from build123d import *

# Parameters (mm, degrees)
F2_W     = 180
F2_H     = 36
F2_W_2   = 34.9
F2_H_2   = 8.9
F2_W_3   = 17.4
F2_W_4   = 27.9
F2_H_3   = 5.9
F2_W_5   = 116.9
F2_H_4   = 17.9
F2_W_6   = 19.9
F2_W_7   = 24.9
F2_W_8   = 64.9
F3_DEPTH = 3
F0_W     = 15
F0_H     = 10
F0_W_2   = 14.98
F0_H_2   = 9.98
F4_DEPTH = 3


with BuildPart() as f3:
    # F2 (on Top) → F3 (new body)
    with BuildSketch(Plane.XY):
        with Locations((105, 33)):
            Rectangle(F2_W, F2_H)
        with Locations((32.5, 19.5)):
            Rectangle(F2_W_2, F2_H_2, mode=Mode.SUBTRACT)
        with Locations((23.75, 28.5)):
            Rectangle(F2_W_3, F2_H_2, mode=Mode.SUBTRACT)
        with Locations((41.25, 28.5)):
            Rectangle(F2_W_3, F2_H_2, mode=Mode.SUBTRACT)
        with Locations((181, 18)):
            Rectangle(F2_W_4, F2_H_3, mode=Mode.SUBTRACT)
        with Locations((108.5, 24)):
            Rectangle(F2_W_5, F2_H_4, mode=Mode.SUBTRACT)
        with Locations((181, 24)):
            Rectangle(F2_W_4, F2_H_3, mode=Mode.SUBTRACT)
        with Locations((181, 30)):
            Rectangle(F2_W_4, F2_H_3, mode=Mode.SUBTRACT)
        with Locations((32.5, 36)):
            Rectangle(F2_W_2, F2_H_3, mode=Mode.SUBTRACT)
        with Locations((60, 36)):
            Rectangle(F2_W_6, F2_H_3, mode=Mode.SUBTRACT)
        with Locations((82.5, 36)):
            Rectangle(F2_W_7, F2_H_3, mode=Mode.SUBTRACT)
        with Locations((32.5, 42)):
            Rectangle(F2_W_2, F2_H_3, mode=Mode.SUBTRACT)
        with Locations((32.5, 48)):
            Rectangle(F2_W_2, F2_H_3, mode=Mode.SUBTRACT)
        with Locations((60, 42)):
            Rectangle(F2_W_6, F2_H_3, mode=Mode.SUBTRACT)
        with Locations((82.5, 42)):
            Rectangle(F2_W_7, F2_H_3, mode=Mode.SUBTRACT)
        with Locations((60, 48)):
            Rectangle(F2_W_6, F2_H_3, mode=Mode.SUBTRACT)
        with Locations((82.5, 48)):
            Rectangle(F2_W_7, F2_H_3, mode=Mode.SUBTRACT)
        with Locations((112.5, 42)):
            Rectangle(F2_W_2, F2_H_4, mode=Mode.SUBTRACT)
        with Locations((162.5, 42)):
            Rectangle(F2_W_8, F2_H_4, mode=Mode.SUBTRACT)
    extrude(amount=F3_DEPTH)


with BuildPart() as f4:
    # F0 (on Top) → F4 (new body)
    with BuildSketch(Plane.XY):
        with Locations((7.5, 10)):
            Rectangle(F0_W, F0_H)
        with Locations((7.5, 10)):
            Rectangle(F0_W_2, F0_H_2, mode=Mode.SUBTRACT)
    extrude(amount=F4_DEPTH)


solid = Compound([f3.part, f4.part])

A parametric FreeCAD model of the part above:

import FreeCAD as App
import Part
import Sketcher

doc = App.newDocument("Part")
body = doc.addObject("PartDesign::Body", "Body")

# Sketch on XY plane
sketch1 = body.newObject("Sketcher::SketchObject", "Sketch")
sketch1.AttachmentSupport = (doc.getObject("XY_Plane"), [""])
sketch1.MapMode = "FlatFace"
sketch1.addGeometry([
    Part.LineSegment(App.Vector(15, 51, 0), App.Vector(15, 15, 0)),  # 0
    Part.LineSegment(App.Vector(15, 15, 0), App.Vector(195, 15, 0)),  # 1
    Part.LineSegment(App.Vector(195, 15, 0), App.Vector(195, 51, 0)),  # 2
    Part.LineSegment(App.Vector(195, 51, 0), App.Vector(15, 51, 0)),  # 3
    Part.LineSegment(App.Vector(50, 15, 0), App.Vector(15, 15, 0)),  # 4
    Part.LineSegment(App.Vector(15, 15, 0), App.Vector(15, 24, 0)),  # 5
    Part.LineSegment(App.Vector(15, 24, 0), App.Vector(50, 24, 0)),  # 6
    Part.LineSegment(App.Vector(50, 24, 0), App.Vector(50, 15, 0)),  # 7
    Part.LineSegment(App.Vector(32, 24, 0), App.Vector(15, 24, 0)),  # 8
    Part.LineSegment(App.Vector(15, 24, 0), App.Vector(15, 33, 0)),  # 9
    Part.LineSegment(App.Vector(15, 33, 0), App.Vector(32, 33, 0)),  # 10
    Part.LineSegment(App.Vector(32, 33, 0), App.Vector(32, 24, 0)),  # 11
    Part.LineSegment(App.Vector(50, 24, 0), App.Vector(33, 24, 0)),  # 12
    Part.LineSegment(App.Vector(33, 24, 0), App.Vector(33, 33, 0)),  # 13
    Part.LineSegment(App.Vector(33, 33, 0), App.Vector(50, 33, 0)),  # 14
    Part.LineSegment(App.Vector(50, 33, 0), App.Vector(50, 24, 0)),  # 15
    Part.LineSegment(App.Vector(167, 15, 0), App.Vector(50, 15, 0)),  # 16
    Part.LineSegment(App.Vector(50, 15, 0), App.Vector(50, 33, 0)),  # 17
    Part.LineSegment(App.Vector(50, 33, 0), App.Vector(167, 33, 0)),  # 18
    Part.LineSegment(App.Vector(167, 33, 0), App.Vector(167, 15, 0)),  # 19
    Part.LineSegment(App.Vector(195, 15, 0), App.Vector(167, 15, 0)),  # 20
    Part.LineSegment(App.Vector(167, 15, 0), App.Vector(167, 21, 0)),  # 21
    Part.LineSegment(App.Vector(167, 21, 0), App.Vector(195, 21, 0)),  # 22
    Part.LineSegment(App.Vector(195, 21, 0), App.Vector(195, 15, 0)),  # 23
    Part.LineSegment(App.Vector(195, 21, 0), App.Vector(167, 21, 0)),  # 24
    Part.LineSegment(App.Vector(167, 21, 0), App.Vector(167, 27, 0)),  # 25
    Part.LineSegment(App.Vector(167, 27, 0), App.Vector(195, 27, 0)),  # 26
    Part.LineSegment(App.Vector(195, 27, 0), App.Vector(195, 21, 0)),  # 27
    Part.LineSegment(App.Vector(195, 27, 0), App.Vector(167, 27, 0)),  # 28
    Part.LineSegment(App.Vector(167, 27, 0), App.Vector(167, 33, 0)),  # 29
    Part.LineSegment(App.Vector(167, 33, 0), App.Vector(195, 33, 0)),  # 30
    Part.LineSegment(App.Vector(195, 33, 0), App.Vector(195, 27, 0)),  # 31
    Part.LineSegment(App.Vector(50, 33, 0), App.Vector(15, 33, 0)),  # 32
    Part.LineSegment(App.Vector(15, 33, 0), App.Vector(15, 39, 0)),  # 33
    Part.LineSegment(App.Vector(15, 39, 0), App.Vector(50, 39, 0)),  # 34
    Part.LineSegment(App.Vector(50, 39, 0), App.Vector(50, 33, 0)),  # 35
    Part.LineSegment(App.Vector(70, 33, 0), App.Vector(50, 33, 0)),  # 36
    Part.LineSegment(App.Vector(50, 33, 0), App.Vector(50, 39, 0)),  # 37
    Part.LineSegment(App.Vector(50, 39, 0), App.Vector(70, 39, 0)),  # 38
    Part.LineSegment(App.Vector(70, 39, 0), App.Vector(70, 33, 0)),  # 39
    Part.LineSegment(App.Vector(95, 33, 0), App.Vector(70, 33, 0)),  # 40
    Part.LineSegment(App.Vector(70, 33, 0), App.Vector(70, 39, 0)),  # 41
    Part.LineSegment(App.Vector(70, 39, 0), App.Vector(95, 39, 0)),  # 42
    Part.LineSegment(App.Vector(95, 39, 0), App.Vector(95, 33, 0)),  # 43
    Part.LineSegment(App.Vector(50, 39, 0), App.Vector(15, 39, 0)),  # 44
    Part.LineSegment(App.Vector(15, 39, 0), App.Vector(15, 45, 0)),  # 45
    Part.LineSegment(App.Vector(15, 45, 0), App.Vector(50, 45, 0)),  # 46
    Part.LineSegment(App.Vector(50, 45, 0), App.Vector(50, 39, 0)),  # 47
    Part.LineSegment(App.Vector(70, 39, 0), App.Vector(50, 39, 0)),  # 48
    Part.LineSegment(App.Vector(50, 39, 0), App.Vector(50, 45, 0)),  # 49
    Part.LineSegment(App.Vector(50, 45, 0), App.Vector(70, 45, 0)),  # 50
    Part.LineSegment(App.Vector(70, 45, 0), App.Vector(70, 39, 0)),  # 51
    Part.LineSegment(App.Vector(50, 45, 0), App.Vector(15, 45, 0)),  # 52
    Part.LineSegment(App.Vector(15, 45, 0), App.Vector(15, 51, 0)),  # 53
    Part.LineSegment(App.Vector(15, 51, 0), App.Vector(50, 51, 0)),  # 54
    Part.LineSegment(App.Vector(50, 51, 0), App.Vector(50, 45, 0)),  # 55
    Part.LineSegment(App.Vector(70, 45, 0), App.Vector(50, 45, 0)),  # 56
    Part.LineSegment(App.Vector(50, 45, 0), App.Vector(50, 51, 0)),  # 57
    Part.LineSegment(App.Vector(50, 51, 0), App.Vector(70, 51, 0)),  # 58
    Part.LineSegment(App.Vector(70, 51, 0), App.Vector(70, 45, 0)),  # 59
    Part.LineSegment(App.Vector(95, 39, 0), App.Vector(70, 39, 0)),  # 60
    Part.LineSegment(App.Vector(70, 39, 0), App.Vector(70, 45, 0)),  # 61
    Part.LineSegment(App.Vector(70, 45, 0), App.Vector(95, 45, 0)),  # 62
    Part.LineSegment(App.Vector(95, 45, 0), App.Vector(95, 39, 0)),  # 63
    Part.LineSegment(App.Vector(95, 45, 0), App.Vector(70, 45, 0)),  # 64
    Part.LineSegment(App.Vector(70, 45, 0), App.Vector(70, 51, 0)),  # 65
    Part.LineSegment(App.Vector(70, 51, 0), App.Vector(95, 51, 0)),  # 66
    Part.LineSegment(App.Vector(95, 51, 0), App.Vector(95, 45, 0)),  # 67
    Part.LineSegment(App.Vector(130, 33, 0), App.Vector(95, 33, 0)),  # 68
    Part.LineSegment(App.Vector(95, 33, 0), App.Vector(95, 51, 0)),  # 69
    Part.LineSegment(App.Vector(95, 51, 0), App.Vector(130, 51, 0)),  # 70
    Part.LineSegment(App.Vector(130, 51, 0), App.Vector(130, 33, 0)),  # 71
    Part.LineSegment(App.Vector(195, 33, 0), App.Vector(130, 33, 0)),  # 72
    Part.LineSegment(App.Vector(130, 33, 0), App.Vector(130, 51, 0)),  # 73
    Part.LineSegment(App.Vector(130, 51, 0), App.Vector(195, 51, 0)),  # 74
    Part.LineSegment(App.Vector(195, 51, 0), App.Vector(195, 33, 0)),  # 75
], False)
sketch1.addConstraint([
    Sketcher.Constraint("Coincident", 0, 2, 1, 1),
    Sketcher.Constraint("Coincident", 1, 2, 2, 1),
    Sketcher.Constraint("Coincident", 2, 2, 3, 1),
    Sketcher.Constraint("Coincident", 3, 2, 0, 1),
    Sketcher.Constraint("Coincident", 4, 2, 5, 1),
    Sketcher.Constraint("Coincident", 5, 2, 6, 1),
    Sketcher.Constraint("Coincident", 6, 2, 7, 1),
    Sketcher.Constraint("Coincident", 7, 2, 4, 1),
    Sketcher.Constraint("Coincident", 8, 2, 9, 1),
    Sketcher.Constraint("Coincident", 9, 2, 10, 1),
    Sketcher.Constraint("Coincident", 10, 2, 11, 1),
    Sketcher.Constraint("Coincident", 11, 2, 8, 1),
    Sketcher.Constraint("Coincident", 12, 2, 13, 1),
    Sketcher.Constraint("Coincident", 13, 2, 14, 1),
    Sketcher.Constraint("Coincident", 14, 2, 15, 1),
    Sketcher.Constraint("Coincident", 15, 2, 12, 1),
    Sketcher.Constraint("Coincident", 16, 2, 17, 1),
    Sketcher.Constraint("Coincident", 17, 2, 18, 1),
    Sketcher.Constraint("Coincident", 18, 2, 19, 1),
    Sketcher.Constraint("Coincident", 19, 2, 16, 1),
    Sketcher.Constraint("Coincident", 20, 2, 21, 1),
    Sketcher.Constraint("Coincident", 21, 2, 22, 1),
    Sketcher.Constraint("Coincident", 22, 2, 23, 1),
    Sketcher.Constraint("Coincident", 23, 2, 20, 1),
    Sketcher.Constraint("Coincident", 24, 2, 25, 1),
    Sketcher.Constraint("Coincident", 25, 2, 26, 1),
    Sketcher.Constraint("Coincident", 26, 2, 27, 1),
    Sketcher.Constraint("Coincident", 27, 2, 24, 1),
    Sketcher.Constraint("Coincident", 28, 2, 29, 1),
    Sketcher.Constraint("Coincident", 29, 2, 30, 1),
    Sketcher.Constraint("Coincident", 30, 2, 31, 1),
    Sketcher.Constraint("Coincident", 31, 2, 28, 1),
    Sketcher.Constraint("Coincident", 32, 2, 33, 1),
    Sketcher.Constraint("Coincident", 33, 2, 34, 1),
    Sketcher.Constraint("Coincident", 34, 2, 35, 1),
    Sketcher.Constraint("Coincident", 35, 2, 32, 1),
    Sketcher.Constraint("Coincident", 36, 2, 37, 1),
    Sketcher.Constraint("Coincident", 37, 2, 38, 1),
    Sketcher.Constraint("Coincident", 38, 2, 39, 1),
    Sketcher.Constraint("Coincident", 39, 2, 36, 1),
    Sketcher.Constraint("Coincident", 40, 2, 41, 1),
    Sketcher.Constraint("Coincident", 41, 2, 42, 1),
    Sketcher.Constraint("Coincident", 42, 2, 43, 1),
    Sketcher.Constraint("Coincident", 43, 2, 40, 1),
    Sketcher.Constraint("Coincident", 44, 2, 45, 1),
    Sketcher.Constraint("Coincident", 45, 2, 46, 1),
    Sketcher.Constraint("Coincident", 46, 2, 47, 1),
    Sketcher.Constraint("Coincident", 47, 2, 44, 1),
    Sketcher.Constraint("Coincident", 48, 2, 49, 1),
    Sketcher.Constraint("Coincident", 49, 2, 50, 1),
    Sketcher.Constraint("Coincident", 50, 2, 51, 1),
    Sketcher.Constraint("Coincident", 51, 2, 48, 1),
    Sketcher.Constraint("Coincident", 52, 2, 53, 1),
    Sketcher.Constraint("Coincident", 53, 2, 54, 1),
    Sketcher.Constraint("Coincident", 54, 2, 55, 1),
    Sketcher.Constraint("Coincident", 55, 2, 52, 1),
    Sketcher.Constraint("Coincident", 56, 2, 57, 1),
    Sketcher.Constraint("Coincident", 57, 2, 58, 1),
    Sketcher.Constraint("Coincident", 58, 2, 59, 1),
    Sketcher.Constraint("Coincident", 59, 2, 56, 1),
    Sketcher.Constraint("Coincident", 60, 2, 61, 1),
    Sketcher.Constraint("Coincident", 61, 2, 62, 1),
    Sketcher.Constraint("Coincident", 62, 2, 63, 1),
    Sketcher.Constraint("Coincident", 63, 2, 60, 1),
    Sketcher.Constraint("Coincident", 64, 2, 65, 1),
    Sketcher.Constraint("Coincident", 65, 2, 66, 1),
    Sketcher.Constraint("Coincident", 66, 2, 67, 1),
    Sketcher.Constraint("Coincident", 67, 2, 64, 1),
    Sketcher.Constraint("Coincident", 68, 2, 69, 1),
    Sketcher.Constraint("Coincident", 69, 2, 70, 1),
    Sketcher.Constraint("Coincident", 70, 2, 71, 1),
    Sketcher.Constraint("Coincident", 71, 2, 68, 1),
    Sketcher.Constraint("Coincident", 72, 2, 73, 1),
    Sketcher.Constraint("Coincident", 73, 2, 74, 1),
    Sketcher.Constraint("Coincident", 74, 2, 75, 1),
    Sketcher.Constraint("Coincident", 75, 2, 72, 1),
    Sketcher.Constraint("Vertical", 0),
    Sketcher.Constraint("Horizontal", 1),
    Sketcher.Constraint("Vertical", 2),
    Sketcher.Constraint("Horizontal", 3),
    Sketcher.Constraint("Horizontal", 4),
    Sketcher.Constraint("Vertical", 5),
    Sketcher.Constraint("Horizontal", 6),
    Sketcher.Constraint("Vertical", 7),
    Sketcher.Constraint("Horizontal", 8),
    Sketcher.Constraint("Vertical", 9),
    Sketcher.Constraint("Horizontal", 10),
    Sketcher.Constraint("Vertical", 11),
    Sketcher.Constraint("Horizontal", 12),
    Sketcher.Constraint("Vertical", 13),
    Sketcher.Constraint("Horizontal", 14),
    Sketcher.Constraint("Vertical", 15),
    Sketcher.Constraint("Horizontal", 16),
    Sketcher.Constraint("Vertical", 17),
    Sketcher.Constraint("Horizontal", 18),
    Sketcher.Constraint("Vertical", 19),
    Sketcher.Constraint("Horizontal", 20),
    Sketcher.Constraint("Vertical", 21),
    Sketcher.Constraint("Horizontal", 22),
    Sketcher.Constraint("Vertical", 23),
    Sketcher.Constraint("Horizontal", 24),
    Sketcher.Constraint("Vertical", 25),
    Sketcher.Constraint("Horizontal", 26),
    Sketcher.Constraint("Vertical", 27),
    Sketcher.Constraint("Horizontal", 28),
    Sketcher.Constraint("Vertical", 29),
    Sketcher.Constraint("Horizontal", 30),
    Sketcher.Constraint("Vertical", 31),
    Sketcher.Constraint("Horizontal", 32),
    Sketcher.Constraint("Vertical", 33),
    Sketcher.Constraint("Horizontal", 34),
    Sketcher.Constraint("Vertical", 35),
    Sketcher.Constraint("Horizontal", 36),
    Sketcher.Constraint("Vertical", 37),
    Sketcher.Constraint("Horizontal", 38),
    Sketcher.Constraint("Vertical", 39),
    Sketcher.Constraint("Horizontal", 40),
    Sketcher.Constraint("Vertical", 41),
    Sketcher.Constraint("Horizontal", 42),
    Sketcher.Constraint("Vertical", 43),
    Sketcher.Constraint("Horizontal", 44),
    Sketcher.Constraint("Vertical", 45),
    Sketcher.Constraint("Horizontal", 46),
    Sketcher.Constraint("Vertical", 47),
    Sketcher.Constraint("Horizontal", 48),
    Sketcher.Constraint("Vertical", 49),
    Sketcher.Constraint("Horizontal", 50),
    Sketcher.Constraint("Vertical", 51),
    Sketcher.Constraint("Horizontal", 52),
    Sketcher.Constraint("Vertical", 53),
    Sketcher.Constraint("Horizontal", 54),
    Sketcher.Constraint("Vertical", 55),
    Sketcher.Constraint("Horizontal", 56),
    Sketcher.Constraint("Vertical", 57),
    Sketcher.Constraint("Horizontal", 58),
    Sketcher.Constraint("Vertical", 59),
    Sketcher.Constraint("Horizontal", 60),
    Sketcher.Constraint("Vertical", 61),
    Sketcher.Constraint("Horizontal", 62),
    Sketcher.Constraint("Vertical", 63),
    Sketcher.Constraint("Horizontal", 64),
    Sketcher.Constraint("Vertical", 65),
    Sketcher.Constraint("Horizontal", 66),
    Sketcher.Constraint("Vertical", 67),
    Sketcher.Constraint("Horizontal", 68),
    Sketcher.Constraint("Vertical", 69),
    Sketcher.Constraint("Horizontal", 70),
    Sketcher.Constraint("Vertical", 71),
    Sketcher.Constraint("Horizontal", 72),
    Sketcher.Constraint("Vertical", 73),
    Sketcher.Constraint("Horizontal", 74),
    Sketcher.Constraint("Vertical", 75),
    Sketcher.Constraint("Horizontal", 11, 2, 12, 2),
    Sketcher.Constraint("Horizontal", 10, 2, 13, 2),
    Sketcher.Constraint("Horizontal", 7, 2, 16, 2),
    Sketcher.Constraint("Horizontal", 14, 2, 17, 2),
    Sketcher.Constraint("Horizontal", 19, 2, 20, 2),
    Sketcher.Constraint("Horizontal", 18, 2, 29, 2),
    Sketcher.Constraint("Horizontal", 35, 2, 36, 2),
    Sketcher.Constraint("Horizontal", 34, 2, 37, 2),
    Sketcher.Constraint("Horizontal", 39, 2, 40, 2),
    Sketcher.Constraint("Horizontal", 38, 2, 41, 2),
    Sketcher.Constraint("Horizontal", 47, 2, 48, 2),
    Sketcher.Constraint("Horizontal", 46, 2, 49, 2),
    Sketcher.Constraint("Horizontal", 55, 2, 56, 2),
    Sketcher.Constraint("Horizontal", 54, 2, 57, 2),
    Sketcher.Constraint("Horizontal", 51, 2, 60, 2),
    Sketcher.Constraint("Horizontal", 50, 2, 61, 2),
    Sketcher.Constraint("Horizontal", 59, 2, 64, 2),
    Sketcher.Constraint("Horizontal", 58, 2, 65, 2),
    Sketcher.Constraint("Horizontal", 43, 2, 68, 2),
    Sketcher.Constraint("Horizontal", 66, 2, 69, 2),
    Sketcher.Constraint("Horizontal", 71, 2, 72, 2),
    Sketcher.Constraint("Horizontal", 70, 2, 73, 2),
    Sketcher.Constraint("Vertical", 5, 2, 8, 2),
    Sketcher.Constraint("Vertical", 7, 2, 14, 2),
    Sketcher.Constraint("Vertical", 21, 2, 24, 2),
    Sketcher.Constraint("Vertical", 23, 2, 26, 2),
    Sketcher.Constraint("Vertical", 25, 2, 28, 2),
    Sketcher.Constraint("Vertical", 27, 2, 30, 2),
    Sketcher.Constraint("Vertical", 9, 2, 32, 2),
    Sketcher.Constraint("Vertical", 15, 2, 34, 2),
    Sketcher.Constraint("Vertical", 17, 2, 36, 2),
    Sketcher.Constraint("Vertical", 33, 2, 44, 2),
    Sketcher.Constraint("Vertical", 35, 2, 46, 2),
    Sketcher.Constraint("Vertical", 37, 2, 48, 2),
    Sketcher.Constraint("Vertical", 39, 2, 50, 2),
    Sketcher.Constraint("Vertical", 45, 2, 52, 2),
    Sketcher.Constraint("Vertical", 47, 2, 54, 2),
    Sketcher.Constraint("Vertical", 49, 2, 56, 2),
    Sketcher.Constraint("Vertical", 51, 2, 58, 2),
    Sketcher.Constraint("Vertical", 41, 2, 60, 2),
    Sketcher.Constraint("Vertical", 43, 2, 62, 2),
    Sketcher.Constraint("Vertical", 61, 2, 64, 2),
    Sketcher.Constraint("Vertical", 63, 2, 66, 2),
    Sketcher.Constraint("Vertical", 31, 2, 74, 2),
    Sketcher.Constraint("Equal", 10, 12),
    Sketcher.Constraint("Equal", 54, 68),
    Sketcher.Constraint("Equal", 7, 9),
    Sketcher.Constraint("Equal", 23, 25),
    Sketcher.Constraint("Equal", 27, 29),
    Sketcher.Constraint("Equal", 31, 33),
    Sketcher.Constraint("Equal", 43, 45),
    Sketcher.Constraint("Equal", 51, 53),
    Sketcher.Constraint("Equal", 19, 69),
    Sketcher.Constraint("DistanceX", 1, 1, 1, 2, 180.0),
    Sketcher.Constraint("DistanceY", 0, 2, 0, 1, 36.0),
    Sketcher.Constraint("DistanceX", 4, 2, 4, 1, 34.9),
    Sketcher.Constraint("DistanceX", 8, 2, 8, 1, 17.4),
    Sketcher.Constraint("DistanceX", 16, 2, 16, 1, 116.9),
    Sketcher.Constraint("DistanceX", 20, 2, 20, 1, 27.9),
    Sketcher.Constraint("DistanceX", 36, 2, 36, 1, 19.9),
    Sketcher.Constraint("DistanceX", 40, 2, 40, 1, 24.9),
    Sketcher.Constraint("DistanceX", 72, 2, 72, 1, 64.9),
    Sketcher.Constraint("DistanceY", 5, 1, 5, 2, 8.9),
    Sketcher.Constraint("DistanceY", 17, 1, 17, 2, 17.9),
    Sketcher.Constraint("DistanceY", 21, 1, 21, 2, 5.9),
    Sketcher.Constraint("DistanceX", -1, 1, 0, 2, 15.0),
    Sketcher.Constraint("DistanceY", -1, 1, 0, 2, 15.0),
    Sketcher.Constraint("DistanceX", -1, 1, 4, 2, 15.05),
    Sketcher.Constraint("DistanceY", -1, 1, 4, 2, 15.05),
    Sketcher.Constraint("DistanceX", -1, 1, 16, 2, 50.05),
    Sketcher.Constraint("DistanceX", -1, 1, 20, 2, 167.05),
    Sketcher.Constraint("DistanceY", -1, 1, 24, 2, 21.05),
    Sketcher.Constraint("DistanceY", -1, 1, 32, 2, 33.05),
    Sketcher.Constraint("DistanceX", -1, 1, 40, 2, 70.05),
    Sketcher.Constraint("DistanceY", -1, 1, 44, 2, 39.05),
    Sketcher.Constraint("DistanceX", -1, 1, 68, 2, 95.05),
])
pad1 = body.newObject("PartDesign::Pad", "Pad")
pad1.Profile = sketch1
pad1.Length = 3
body2 = doc.addObject("PartDesign::Body", "Body001")

# Sketch on XY plane
sketch2 = body2.newObject("Sketcher::SketchObject", "Sketch001")
sketch2.AttachmentSupport = (doc.getObject("XY_Plane001"), [""])
sketch2.MapMode = "FlatFace"
sketch2.addGeometry([
    Part.LineSegment(App.Vector(0, 15, 0), App.Vector(0, 5, 0)),  # 0
    Part.LineSegment(App.Vector(0, 5, 0), App.Vector(15, 5, 0)),  # 1
    Part.LineSegment(App.Vector(15, 5, 0), App.Vector(15, 15, 0)),  # 2
    Part.LineSegment(App.Vector(15, 15, 0), App.Vector(0, 15, 0)),  # 3
    Part.LineSegment(App.Vector(15, 5, 0), App.Vector(0, 5, 0)),  # 4
    Part.LineSegment(App.Vector(0, 5, 0), App.Vector(0, 15, 0)),  # 5
    Part.LineSegment(App.Vector(0, 15, 0), App.Vector(15, 15, 0)),  # 6
    Part.LineSegment(App.Vector(15, 15, 0), App.Vector(15, 5, 0)),  # 7
], False)
sketch2.addConstraint([
    Sketcher.Constraint("Coincident", 0, 2, 1, 1),
    Sketcher.Constraint("Coincident", 1, 2, 2, 1),
    Sketcher.Constraint("Coincident", 2, 2, 3, 1),
    Sketcher.Constraint("Coincident", 3, 2, 0, 1),
    Sketcher.Constraint("Coincident", 4, 2, 5, 1),
    Sketcher.Constraint("Coincident", 5, 2, 6, 1),
    Sketcher.Constraint("Coincident", 6, 2, 7, 1),
    Sketcher.Constraint("Coincident", 7, 2, 4, 1),
    Sketcher.Constraint("Vertical", 0),
    Sketcher.Constraint("Horizontal", 1),
    Sketcher.Constraint("Vertical", 2),
    Sketcher.Constraint("Horizontal", 3),
    Sketcher.Constraint("Horizontal", 4),
    Sketcher.Constraint("Vertical", 5),
    Sketcher.Constraint("Horizontal", 6),
    Sketcher.Constraint("Vertical", 7),
    Sketcher.Constraint("PointOnObject", 0, 2, -2),
    Sketcher.Constraint("DistanceX", 1, 1, 1, 2, 15.0),
    Sketcher.Constraint("DistanceY", 0, 2, 0, 1, 10.0),
    Sketcher.Constraint("DistanceY", -1, 1, 0, 2, 5.0),
    Sketcher.Constraint("DistanceX", 4, 2, 4, 1, 14.98),
    Sketcher.Constraint("DistanceY", 5, 1, 5, 2, 9.98),
    Sketcher.Constraint("DistanceX", -1, 1, 4, 2, 0.01),
    Sketcher.Constraint("DistanceY", -1, 1, 4, 2, 5.01),
])
pad2 = body2.newObject("PartDesign::Pad", "Pad001")
pad2.Profile = sketch2
pad2.Length = 3

doc.recompute()
